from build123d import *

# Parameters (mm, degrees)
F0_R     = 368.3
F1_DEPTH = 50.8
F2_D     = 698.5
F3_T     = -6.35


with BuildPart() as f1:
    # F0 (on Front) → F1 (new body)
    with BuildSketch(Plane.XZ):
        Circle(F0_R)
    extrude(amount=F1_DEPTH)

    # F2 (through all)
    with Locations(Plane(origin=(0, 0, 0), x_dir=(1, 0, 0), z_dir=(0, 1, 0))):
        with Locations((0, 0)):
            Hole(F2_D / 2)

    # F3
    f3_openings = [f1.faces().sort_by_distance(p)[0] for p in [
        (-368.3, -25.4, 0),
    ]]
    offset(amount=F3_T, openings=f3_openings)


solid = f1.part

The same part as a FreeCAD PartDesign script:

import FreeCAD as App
import Part
import Sketcher
Q = App.Units.Quantity


def faces_at(feature, points):
    """Names of the faces that lie closest to the given points."""
    faces = feature.Shape.Faces
    near = lambda p: min(range(len(faces)), key=lambda i: faces[i].distToShape(Part.Vertex(*p))[0])
    return sorted({f"Face{near(p) + 1}" for p in points})

doc = App.newDocument("Part")
body = doc.addObject("PartDesign::Body", "Body")

# Sketch on XZ plane
sketch1 = body.newObject("Sketcher::SketchObject", "Sketch")
sketch1.AttachmentSupport = (doc.getObject("XZ_Plane"), [""])
sketch1.MapMode = "FlatFace"
sketch1.addGeometry(Part.Circle(App.Vector(0, 0, 0), App.Vector(0, 0, 1), 368), False)
sketch1.addConstraint(Sketcher.Constraint("Coincident", 0, 3, -1, 1))
sketch1.addConstraint(Sketcher.Constraint("Diameter", 0, Q("29 in")))
pad1 = body.newObject("PartDesign::Pad", "Pad")
pad1.Profile = sketch1
pad1.Length = Q("2 in")

# Sketch on XZ plane
sketch2 = body.newObject("Sketcher::SketchObject", "Sketch001")
sketch2.AttachmentSupport = (doc.getObject("XZ_Plane"), [""])
sketch2.MapMode = "FlatFace"
sketch2.addGeometry(Part.Circle(App.Vector(0, 0, 0), App.Vector(0, 0, 1), 349), False)
sketch2.addConstraint(Sketcher.Constraint("Coincident", 0, 3, -1, 1))
sketch2.addConstraint(Sketcher.Constraint("Diameter", 0, Q("27.5 in")))
doc.recompute()
hole = body.newObject("PartDesign::Hole", "Hole")
hole.Profile = sketch2
hole.ThreadType = "None"
hole.Diameter = Q("27.5 in")
hole.DepthType = "ThroughAll"
hole.Reversed = True
doc.recompute()

thickness = body.newObject("PartDesign::Thickness", "Thickness")
thickness.Base = (hole, faces_at(hole, [(-368.3, -25.4, 0)]))
thickness.Value = Q("0.25 in")
thickness.Reversed = True
thickness.Join = "Arc"

doc.recompute()
